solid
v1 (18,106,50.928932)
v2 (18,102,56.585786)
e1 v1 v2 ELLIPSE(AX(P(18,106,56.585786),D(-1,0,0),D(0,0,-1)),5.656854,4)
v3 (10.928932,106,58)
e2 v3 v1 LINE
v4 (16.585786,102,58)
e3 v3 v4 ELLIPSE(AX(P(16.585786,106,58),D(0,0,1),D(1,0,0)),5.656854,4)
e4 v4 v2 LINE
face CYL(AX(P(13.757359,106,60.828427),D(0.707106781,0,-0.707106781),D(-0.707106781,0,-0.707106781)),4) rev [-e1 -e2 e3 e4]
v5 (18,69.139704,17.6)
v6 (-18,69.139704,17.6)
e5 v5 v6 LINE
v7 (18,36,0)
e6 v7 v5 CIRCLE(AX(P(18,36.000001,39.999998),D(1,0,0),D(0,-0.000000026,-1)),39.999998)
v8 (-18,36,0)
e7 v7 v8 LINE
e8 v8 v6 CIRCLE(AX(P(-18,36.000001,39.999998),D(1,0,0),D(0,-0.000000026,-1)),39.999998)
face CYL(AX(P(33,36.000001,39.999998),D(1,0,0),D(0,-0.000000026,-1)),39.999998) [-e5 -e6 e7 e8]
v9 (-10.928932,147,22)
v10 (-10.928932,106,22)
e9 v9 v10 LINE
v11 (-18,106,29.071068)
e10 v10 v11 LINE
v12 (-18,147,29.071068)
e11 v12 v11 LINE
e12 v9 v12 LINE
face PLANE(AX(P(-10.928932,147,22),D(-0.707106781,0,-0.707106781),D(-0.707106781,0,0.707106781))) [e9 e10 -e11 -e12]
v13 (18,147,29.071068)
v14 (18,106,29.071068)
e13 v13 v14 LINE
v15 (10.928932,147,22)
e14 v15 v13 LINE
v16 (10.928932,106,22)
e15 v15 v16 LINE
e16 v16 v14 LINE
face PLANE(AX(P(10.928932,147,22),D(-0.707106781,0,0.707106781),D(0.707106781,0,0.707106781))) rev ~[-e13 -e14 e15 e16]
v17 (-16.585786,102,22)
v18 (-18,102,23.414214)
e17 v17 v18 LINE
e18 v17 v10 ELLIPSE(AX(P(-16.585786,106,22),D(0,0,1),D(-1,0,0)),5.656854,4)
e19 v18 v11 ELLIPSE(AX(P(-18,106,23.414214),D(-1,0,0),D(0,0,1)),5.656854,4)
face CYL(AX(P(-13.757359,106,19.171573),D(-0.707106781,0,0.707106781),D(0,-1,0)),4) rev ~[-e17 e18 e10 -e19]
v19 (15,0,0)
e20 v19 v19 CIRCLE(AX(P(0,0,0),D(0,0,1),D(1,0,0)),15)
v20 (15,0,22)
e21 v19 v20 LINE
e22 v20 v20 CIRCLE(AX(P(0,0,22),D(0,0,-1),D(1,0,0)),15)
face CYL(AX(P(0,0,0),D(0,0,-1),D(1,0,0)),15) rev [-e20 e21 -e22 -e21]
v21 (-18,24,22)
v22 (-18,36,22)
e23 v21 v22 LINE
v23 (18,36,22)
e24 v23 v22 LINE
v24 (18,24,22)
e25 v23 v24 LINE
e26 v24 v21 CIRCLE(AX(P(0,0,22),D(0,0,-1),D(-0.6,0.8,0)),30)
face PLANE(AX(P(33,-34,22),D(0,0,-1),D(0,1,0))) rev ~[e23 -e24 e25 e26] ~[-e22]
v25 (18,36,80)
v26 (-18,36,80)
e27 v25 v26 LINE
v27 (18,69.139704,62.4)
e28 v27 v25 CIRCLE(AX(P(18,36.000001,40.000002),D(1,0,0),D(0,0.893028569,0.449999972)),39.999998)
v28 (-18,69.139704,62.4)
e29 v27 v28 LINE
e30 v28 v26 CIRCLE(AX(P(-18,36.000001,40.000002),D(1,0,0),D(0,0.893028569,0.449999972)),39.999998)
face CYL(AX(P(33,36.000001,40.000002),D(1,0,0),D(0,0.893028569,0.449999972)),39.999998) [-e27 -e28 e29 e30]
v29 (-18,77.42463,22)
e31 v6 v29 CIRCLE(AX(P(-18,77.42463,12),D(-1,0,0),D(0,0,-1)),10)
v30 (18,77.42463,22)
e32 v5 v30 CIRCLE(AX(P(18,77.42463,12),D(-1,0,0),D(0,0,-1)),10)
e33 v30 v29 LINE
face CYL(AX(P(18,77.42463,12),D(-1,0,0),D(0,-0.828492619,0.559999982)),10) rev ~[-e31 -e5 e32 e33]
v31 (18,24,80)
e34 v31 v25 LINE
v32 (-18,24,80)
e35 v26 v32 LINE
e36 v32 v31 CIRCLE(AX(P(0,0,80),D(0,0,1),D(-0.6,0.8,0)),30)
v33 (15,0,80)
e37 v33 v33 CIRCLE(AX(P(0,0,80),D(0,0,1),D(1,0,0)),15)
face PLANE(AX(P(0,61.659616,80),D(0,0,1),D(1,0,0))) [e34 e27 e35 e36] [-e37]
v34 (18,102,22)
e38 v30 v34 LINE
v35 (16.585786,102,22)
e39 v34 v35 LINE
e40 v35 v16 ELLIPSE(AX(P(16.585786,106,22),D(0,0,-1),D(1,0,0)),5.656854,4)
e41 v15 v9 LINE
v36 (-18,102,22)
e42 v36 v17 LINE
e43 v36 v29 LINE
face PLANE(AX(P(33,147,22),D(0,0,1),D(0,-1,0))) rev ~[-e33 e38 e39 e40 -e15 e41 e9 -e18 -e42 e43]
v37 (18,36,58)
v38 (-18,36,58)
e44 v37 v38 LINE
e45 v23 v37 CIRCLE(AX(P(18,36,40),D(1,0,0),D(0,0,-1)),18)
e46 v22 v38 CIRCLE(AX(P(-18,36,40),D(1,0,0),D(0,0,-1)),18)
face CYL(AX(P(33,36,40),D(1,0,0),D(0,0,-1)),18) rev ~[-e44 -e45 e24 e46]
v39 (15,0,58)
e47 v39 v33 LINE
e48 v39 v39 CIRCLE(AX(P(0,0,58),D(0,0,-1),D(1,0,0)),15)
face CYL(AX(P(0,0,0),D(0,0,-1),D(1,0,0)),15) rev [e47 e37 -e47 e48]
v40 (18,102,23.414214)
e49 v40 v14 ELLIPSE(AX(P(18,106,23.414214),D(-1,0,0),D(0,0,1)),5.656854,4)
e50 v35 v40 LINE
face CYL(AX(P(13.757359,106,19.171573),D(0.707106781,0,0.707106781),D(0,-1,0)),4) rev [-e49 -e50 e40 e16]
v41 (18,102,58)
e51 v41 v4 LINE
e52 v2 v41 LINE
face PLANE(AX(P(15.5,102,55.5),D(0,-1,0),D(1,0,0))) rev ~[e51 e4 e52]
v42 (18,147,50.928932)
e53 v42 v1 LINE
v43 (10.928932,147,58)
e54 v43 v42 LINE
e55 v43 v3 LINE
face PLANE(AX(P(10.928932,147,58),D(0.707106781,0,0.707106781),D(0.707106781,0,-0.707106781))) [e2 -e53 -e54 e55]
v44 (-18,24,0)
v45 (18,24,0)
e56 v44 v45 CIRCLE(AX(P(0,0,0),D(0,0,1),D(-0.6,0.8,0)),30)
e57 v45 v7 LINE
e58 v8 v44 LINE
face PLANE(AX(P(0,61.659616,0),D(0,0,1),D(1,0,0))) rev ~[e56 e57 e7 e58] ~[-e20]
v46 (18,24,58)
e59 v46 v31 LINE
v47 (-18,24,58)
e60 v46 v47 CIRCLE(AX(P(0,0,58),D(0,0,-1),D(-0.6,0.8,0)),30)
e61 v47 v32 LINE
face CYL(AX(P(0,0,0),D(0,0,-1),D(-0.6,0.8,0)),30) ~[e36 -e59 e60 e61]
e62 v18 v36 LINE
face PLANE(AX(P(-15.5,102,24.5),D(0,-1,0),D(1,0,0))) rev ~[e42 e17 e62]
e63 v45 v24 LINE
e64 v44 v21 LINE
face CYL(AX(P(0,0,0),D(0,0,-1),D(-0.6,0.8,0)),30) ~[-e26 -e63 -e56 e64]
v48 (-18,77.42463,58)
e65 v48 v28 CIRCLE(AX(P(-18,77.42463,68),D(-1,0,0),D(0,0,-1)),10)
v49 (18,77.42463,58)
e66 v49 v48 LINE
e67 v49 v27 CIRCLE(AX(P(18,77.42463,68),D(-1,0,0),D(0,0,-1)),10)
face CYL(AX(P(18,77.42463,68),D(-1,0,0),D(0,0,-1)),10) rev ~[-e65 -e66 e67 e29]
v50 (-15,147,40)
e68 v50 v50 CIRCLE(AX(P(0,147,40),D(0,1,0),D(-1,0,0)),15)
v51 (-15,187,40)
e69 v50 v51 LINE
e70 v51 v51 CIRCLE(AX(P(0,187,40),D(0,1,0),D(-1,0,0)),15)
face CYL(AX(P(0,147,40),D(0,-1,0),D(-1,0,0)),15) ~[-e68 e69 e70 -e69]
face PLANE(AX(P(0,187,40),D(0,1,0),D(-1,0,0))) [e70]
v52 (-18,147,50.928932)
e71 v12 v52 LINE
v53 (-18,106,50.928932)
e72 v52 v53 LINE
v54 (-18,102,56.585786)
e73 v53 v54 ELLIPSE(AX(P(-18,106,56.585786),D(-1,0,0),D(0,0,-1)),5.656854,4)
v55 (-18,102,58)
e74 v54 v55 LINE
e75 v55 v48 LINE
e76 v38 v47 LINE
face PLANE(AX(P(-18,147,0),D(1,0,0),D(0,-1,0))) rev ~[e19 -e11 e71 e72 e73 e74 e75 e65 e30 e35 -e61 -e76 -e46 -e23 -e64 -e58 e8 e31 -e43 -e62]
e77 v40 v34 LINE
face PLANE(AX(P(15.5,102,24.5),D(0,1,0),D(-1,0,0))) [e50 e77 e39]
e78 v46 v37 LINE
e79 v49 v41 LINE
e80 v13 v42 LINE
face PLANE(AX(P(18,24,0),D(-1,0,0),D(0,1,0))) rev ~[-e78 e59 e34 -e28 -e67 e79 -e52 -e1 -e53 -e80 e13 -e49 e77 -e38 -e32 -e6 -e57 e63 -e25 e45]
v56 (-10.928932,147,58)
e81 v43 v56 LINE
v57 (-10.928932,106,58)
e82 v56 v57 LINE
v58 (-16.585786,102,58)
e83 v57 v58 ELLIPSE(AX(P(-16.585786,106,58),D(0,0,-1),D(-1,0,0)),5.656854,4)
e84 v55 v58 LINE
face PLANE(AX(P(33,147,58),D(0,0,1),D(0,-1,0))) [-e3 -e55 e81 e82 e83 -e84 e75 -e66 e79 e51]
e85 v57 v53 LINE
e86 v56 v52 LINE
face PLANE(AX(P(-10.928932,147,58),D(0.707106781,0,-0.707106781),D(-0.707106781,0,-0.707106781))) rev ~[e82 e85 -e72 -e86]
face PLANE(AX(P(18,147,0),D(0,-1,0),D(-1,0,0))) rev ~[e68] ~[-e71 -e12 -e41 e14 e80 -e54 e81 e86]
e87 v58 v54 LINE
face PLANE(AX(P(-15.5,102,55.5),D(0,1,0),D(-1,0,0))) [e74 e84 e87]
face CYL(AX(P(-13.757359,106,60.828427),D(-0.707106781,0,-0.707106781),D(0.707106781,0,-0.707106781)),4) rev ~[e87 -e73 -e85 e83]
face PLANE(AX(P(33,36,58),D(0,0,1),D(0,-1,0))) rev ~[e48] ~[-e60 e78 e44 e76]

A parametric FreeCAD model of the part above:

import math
import FreeCAD as App
import Part
import Sketcher
Q = App.Units.Quantity


def edges_at(feature, points):
    """Names of the edges that pass closest to the given points."""
    edges = feature.Shape.Edges
    near = lambda p: min(range(len(edges)), key=lambda i: edges[i].distToShape(Part.Vertex(*p))[0])
    return sorted({f"Edge{near(p) + 1}" for p in points})


def add_polygon(sketch, points):
    """Adds a closed chain of lines whose ends are joined by coincident constraints."""
    first, n = sketch.GeometryCount, len(points)
    for a, b in zip(points, points[1:] + points[:1]):
        sketch.addGeometry(Part.LineSegment(App.Vector(*a, 0), App.Vector(*b, 0)), False)
    for i in range(n):
        sketch.addConstraint(Sketcher.Constraint("Coincident", first + i, 2, first + (i + 1) % n, 1))

doc = App.newDocument("Part")
body = doc.addObject("PartDesign::Body", "Body")

sketch1 = body.newObject("Sketcher::SketchObject", "Sketch")
sketch1.AttachmentSupport = (doc.getObject("XY_Plane"), [""])
sketch1.MapMode = "FlatFace"
sketch1.addGeometry(Part.ArcOfCircle(Part.Circle(App.Vector(0, 0, 0), App.Vector(0, 0, 1), 30), math.radians(127), math.radians(413)), False)
sketch1.addGeometry(Part.LineSegment(App.Vector(18, 24, 0), App.Vector(18, 147, 0)), False)
sketch1.addGeometry(Part.LineSegment(App.Vector(18, 147, 0), App.Vector(-18, 147, 0)), False)
sketch1.addGeometry(Part.LineSegment(App.Vector(-18, 147, 0), App.Vector(-18, 24, 0)), False)
sketch1.addGeometry(Part.Circle(App.Vector(0, 0, 0), App.Vector(0, 0, 1), 15), False)
sketch1.addConstraint(Sketcher.Constraint("Coincident", 0, 2, 1, 1))
sketch1.addConstraint(Sketcher.Constraint("Coincident", 1, 2, 2, 1))
sketch1.addConstraint(Sketcher.Constraint("Coincident", 2, 2, 3, 1))
sketch1.addConstraint(Sketcher.Constraint("Coincident", 3, 2, 0, 1))
sketch1.addConstraint(Sketcher.Constraint("Vertical", 1))
sketch1.addConstraint(Sketcher.Constraint("Horizontal", 2))
sketch1.addConstraint(Sketcher.Constraint("Vertical", 3))
sketch1.addConstraint(Sketcher.Constraint("Coincident", 0, 3, -1, 1))
sketch1.addConstraint(Sketcher.Constraint("Coincident", 4, 3, -1, 1))
sketch1.addConstraint(Sketcher.Constraint("Horizontal", 0, 2, 3, 2))
sketch1.addConstraint(Sketcher.Constraint("Diameter", 4, Q("30 mm")))
sketch1.addConstraint(Sketcher.Constraint("Radius", 0, Q("30 mm")))
sketch1.addConstraint(Sketcher.Constraint("DistanceX", 2, 2, 2, 1, Q("36 mm")))
sketch1.addConstraint(Sketcher.Constraint("DistanceY", 1, 1, 1, 2, Q("123 mm")))
pad1 = body.newObject("PartDesign::Pad", "Pad")
pad1.Profile = sketch1
pad1.Length = 80

sketch2 = body.newObject("Sketcher::SketchObject", "Sketch001")
sketch2.AttachmentSupport = (doc.getObject("YZ_Plane"), [""])
sketch2.MapMode = "FlatFace"
sketch2.AttachmentOffset = App.Placement(App.Vector(0, 0, 33), App.Rotation())
sketch2.addGeometry(Part.LineSegment(App.Vector(-34, 22, 0), App.Vector(36, 22, 0)), False)
sketch2.addGeometry(Part.ArcOfCircle(Part.Circle(App.Vector(36, 40, 0), App.Vector(0, 0, 1), 18), math.radians(-90), math.radians(90)), False)
sketch2.addGeometry(Part.LineSegment(App.Vector(36, 58, 0), App.Vector(-34, 58, 0)), False)
sketch2.addGeometry(Part.LineSegment(App.Vector(-34, 58, 0), App.Vector(-34, 22, 0)), False)
sketch2.addGeometry(Part.ArcOfCircle(Part.Circle(App.Vector(36, 40, 0), App.Vector(0, 0, 1), 40), math.radians(-90), math.radians(-27)), False)
sketch2.addGeometry(Part.LineSegment(App.Vector(36, 0, 0), App.Vector(147, 0, 0)), False)
sketch2.addGeometry(Part.LineSegment(App.Vector(147, 0, 0), App.Vector(147, 22, 0)), False)
sketch2.addGeometry(Part.LineSegment(App.Vector(147, 22, 0), App.Vector(72, 22, 0)), False)
sketch2.addGeometry(Part.LineSegment(App.Vector(72, 58, 0), App.Vector(147, 58, 0)), False)
sketch2.addGeometry(Part.LineSegment(App.Vector(147, 58, 0), App.Vector(147, 80, 0)), False)
sketch2.addGeometry(Part.LineSegment(App.Vector(147, 80, 0), App.Vector(36, 80, 0)), False)
sketch2.addGeometry(Part.ArcOfCircle(Part.Circle(App.Vector(36, 40, 0), App.Vector(0, 0, 1), 40), math.radians(27), math.radians(90)), False)
sketch2.addConstraint(Sketcher.Constraint("Tangent", 0, 2, 1, 1))
sketch2.addConstraint(Sketcher.Constraint("Tangent", 1, 2, 2, 1))
sketch2.addConstraint(Sketcher.Constraint("Coincident", 2, 2, 3, 1))
sketch2.addConstraint(Sketcher.Constraint("Coincident", 3, 2, 0, 1))
sketch2.addConstraint(Sketcher.Constraint("Tangent", 4, 1, 5, 1))
sketch2.addConstraint(Sketcher.Constraint("Coincident", 5, 2, 6, 1))
sketch2.addConstraint(Sketcher.Constraint("Coincident", 6, 2, 7, 1))
sketch2.addConstraint(Sketcher.Constraint("Coincident", 7, 2, 4, 2))
sketch2.addConstraint(Sketcher.Constraint("Coincident", 8, 2, 9, 1))
sketch2.addConstraint(Sketcher.Constraint("Coincident", 9, 2, 10, 1))
sketch2.addConstraint(Sketcher.Constraint("Tangent", 10, 2, 11, 2))
sketch2.addConstraint(Sketcher.Constraint("Coincident", 11, 1, 8, 1))
sketch2.addConstraint(Sketcher.Constraint("Horizontal", 0))
sketch2.addConstraint(Sketcher.Constraint("Horizontal", 2))
sketch2.addConstraint(Sketcher.Constraint("Vertical", 3))
sketch2.addConstraint(Sketcher.Constraint("Horizontal", 5))
sketch2.addConstraint(Sketcher.Constraint("Vertical", 6))
sketch2.addConstraint(Sketcher.Constraint("Horizontal", 7))
sketch2.addConstraint(Sketcher.Constraint("Horizontal", 8))
sketch2.addConstraint(Sketcher.Constraint("Vertical", 9))
sketch2.addConstraint(Sketcher.Constraint("Horizontal", 10))
sketch2.addConstraint(Sketcher.Constraint("Coincident", 4, 3, 1, 3))
sketch2.addConstraint(Sketcher.Constraint("Coincident", 11, 3, 1, 3))
sketch2.addConstraint(Sketcher.Constraint("Equal", 4, 11))
sketch2.addConstraint(Sketcher.Constraint("PointOnObject", 4, 1, -1))
sketch2.addConstraint(Sketcher.Constraint("Horizontal", 3, 2, 6, 2))
sketch2.addConstraint(Sketcher.Constraint("Horizontal", 2, 2, 8, 2))
sketch2.addConstraint(Sketcher.Constraint("Vertical", 6, 2, 8, 2))
sketch2.addConstraint(Sketcher.Constraint("Radius", 1, Q("18 mm")))
sketch2.addConstraint(Sketcher.Constraint("DistanceX", 0, 1, 0, 2, Q("70 mm")))
sketch2.addConstraint(Sketcher.Constraint("DistanceX", 5, 1, 5, 2, Q("111 mm")))
sketch2.addConstraint(Sketcher.Constraint("DistanceY", 6, 1, 6, 2, Q("22 mm")))
sketch2.addConstraint(Sketcher.Constraint("DistanceX", -1, 1, 1, 3, Q("36 mm")))
pocket1 = body.newObject("PartDesign::Pocket", "Pocket")
pocket1.Profile = sketch2
pocket1.Type = "ThroughAll"
doc.recompute()

fillet = body.newObject("PartDesign::Fillet", "Fillet")
fillet.Base = (pocket1, edges_at(pocket1, [(0, 71.721, 58), (0, 71.721, 22)]))
fillet.Radius = 10

sketch3 = body.newObject("Sketcher::SketchObject", "Sketch002")
sketch3.AttachmentSupport = (doc.getObject("XZ_Plane"), [""])
sketch3.MapMode = "FlatFace"
sketch3.AttachmentOffset = App.Placement(App.Vector(0, 0, -147), App.Rotation())
add_polygon(sketch3, [(11, 58), (18, 58), (18, 51)])
add_polygon(sketch3, [(18, 22), (11, 22), (18, 29)])
add_polygon(sketch3, [(-11, 22), (-18, 22), (-18, 29)])
add_polygon(sketch3, [(-18, 58), (-11, 58), (-18, 51)])
sketch3.addConstraint(Sketcher.Constraint("Horizontal", 0))
sketch3.addConstraint(Sketcher.Constraint("Vertical", 1))
sketch3.addConstraint(Sketcher.Constraint("Horizontal", 3))
sketch3.addConstraint(Sketcher.Constraint("Vertical", 5))
sketch3.addConstraint(Sketcher.Constraint("Horizontal", 6))
sketch3.addConstraint(Sketcher.Constraint("Vertical", 7))
sketch3.addConstraint(Sketcher.Constraint("Horizontal", 9))
sketch3.addConstraint(Sketcher.Constraint("Vertical", 11))
sketch3.addConstraint(Sketcher.Constraint("Symmetric", 5, 2, 6, 2, -2))
sketch3.addConstraint(Sketcher.Constraint("Symmetric", 2, 2, 9, 2, -2))
sketch3.addConstraint(Sketcher.Constraint("Symmetric", 1, 2, 10, 2, -2))
sketch3.addConstraint(Sketcher.Constraint("Perpendicular", 2, 4))
sketch3.addConstraint(Sketcher.Constraint("Perpendicular", 4, 8))
sketch3.addConstraint(Sketcher.Constraint("Perpendicular", 8, 10))
sketch3.addConstraint(Sketcher.Constraint("Horizontal", 4, 2, 7, 2))
sketch3.addConstraint(Sketcher.Constraint("Vertical", 2, 2, 3, 2))
sketch3.addConstraint(Sketcher.Constraint("Vertical", 1, 2, 4, 2))
sketch3.addConstraint(Sketcher.Constraint("Distance", 2, Q("10 mm")))
sketch3.addConstraint(Sketcher.Constraint("DistanceX", -1, 1, 0, 2, Q("18 mm")))
sketch3.addConstraint(Sketcher.Constraint("DistanceY", -1, 1, 0, 2, Q("58 mm")))
sketch3.addConstraint(Sketcher.Constraint("DistanceY", -1, 1, 3, 2, Q("22 mm")))
pocket2 = body.newObject("PartDesign::Pocket", "Pocket001")
pocket2.Profile = sketch3
pocket2.Length = 45
pocket2.Reversed = True
doc.recompute()

fillet2 = body.newObject("PartDesign::Fillet", "Fillet001")
fillet2.Base = (pocket2, edges_at(pocket2, [
    (-14.464, 102, 25.536),
    (14.464, 102, 25.536),
    (-14.464, 102, 54.464),
    (14.464, 102, 54.464),
]))
fillet2.Radius = 4

sketch4 = body.newObject("Sketcher::SketchObject", "Sketch003")
sketch4.AttachmentSupport = (doc.getObject("XZ_Plane"), [""])
sketch4.MapMode = "FlatFace"
sketch4.AttachmentOffset = App.Placement(App.Vector(0, 0, -147), App.Rotation())
sketch4.addGeometry(Part.Circle(App.Vector(0, 40, 0), App.Vector(0, 0, 1), 15), False)
sketch4.addConstraint(Sketcher.Constraint("PointOnObject", 0, 3, -2))
sketch4.addConstraint(Sketcher.Constraint("Diameter", 0, Q("30 mm")))
sketch4.addConstraint(Sketcher.Constraint("DistanceY", -1, 1, 0, 3, Q("40 mm")))
pad2 = body.newObject("PartDesign::Pad", "Pad001")
pad2.Profile = sketch4
pad2.Length = 40
pad2.Reversed = True

doc.recompute()
